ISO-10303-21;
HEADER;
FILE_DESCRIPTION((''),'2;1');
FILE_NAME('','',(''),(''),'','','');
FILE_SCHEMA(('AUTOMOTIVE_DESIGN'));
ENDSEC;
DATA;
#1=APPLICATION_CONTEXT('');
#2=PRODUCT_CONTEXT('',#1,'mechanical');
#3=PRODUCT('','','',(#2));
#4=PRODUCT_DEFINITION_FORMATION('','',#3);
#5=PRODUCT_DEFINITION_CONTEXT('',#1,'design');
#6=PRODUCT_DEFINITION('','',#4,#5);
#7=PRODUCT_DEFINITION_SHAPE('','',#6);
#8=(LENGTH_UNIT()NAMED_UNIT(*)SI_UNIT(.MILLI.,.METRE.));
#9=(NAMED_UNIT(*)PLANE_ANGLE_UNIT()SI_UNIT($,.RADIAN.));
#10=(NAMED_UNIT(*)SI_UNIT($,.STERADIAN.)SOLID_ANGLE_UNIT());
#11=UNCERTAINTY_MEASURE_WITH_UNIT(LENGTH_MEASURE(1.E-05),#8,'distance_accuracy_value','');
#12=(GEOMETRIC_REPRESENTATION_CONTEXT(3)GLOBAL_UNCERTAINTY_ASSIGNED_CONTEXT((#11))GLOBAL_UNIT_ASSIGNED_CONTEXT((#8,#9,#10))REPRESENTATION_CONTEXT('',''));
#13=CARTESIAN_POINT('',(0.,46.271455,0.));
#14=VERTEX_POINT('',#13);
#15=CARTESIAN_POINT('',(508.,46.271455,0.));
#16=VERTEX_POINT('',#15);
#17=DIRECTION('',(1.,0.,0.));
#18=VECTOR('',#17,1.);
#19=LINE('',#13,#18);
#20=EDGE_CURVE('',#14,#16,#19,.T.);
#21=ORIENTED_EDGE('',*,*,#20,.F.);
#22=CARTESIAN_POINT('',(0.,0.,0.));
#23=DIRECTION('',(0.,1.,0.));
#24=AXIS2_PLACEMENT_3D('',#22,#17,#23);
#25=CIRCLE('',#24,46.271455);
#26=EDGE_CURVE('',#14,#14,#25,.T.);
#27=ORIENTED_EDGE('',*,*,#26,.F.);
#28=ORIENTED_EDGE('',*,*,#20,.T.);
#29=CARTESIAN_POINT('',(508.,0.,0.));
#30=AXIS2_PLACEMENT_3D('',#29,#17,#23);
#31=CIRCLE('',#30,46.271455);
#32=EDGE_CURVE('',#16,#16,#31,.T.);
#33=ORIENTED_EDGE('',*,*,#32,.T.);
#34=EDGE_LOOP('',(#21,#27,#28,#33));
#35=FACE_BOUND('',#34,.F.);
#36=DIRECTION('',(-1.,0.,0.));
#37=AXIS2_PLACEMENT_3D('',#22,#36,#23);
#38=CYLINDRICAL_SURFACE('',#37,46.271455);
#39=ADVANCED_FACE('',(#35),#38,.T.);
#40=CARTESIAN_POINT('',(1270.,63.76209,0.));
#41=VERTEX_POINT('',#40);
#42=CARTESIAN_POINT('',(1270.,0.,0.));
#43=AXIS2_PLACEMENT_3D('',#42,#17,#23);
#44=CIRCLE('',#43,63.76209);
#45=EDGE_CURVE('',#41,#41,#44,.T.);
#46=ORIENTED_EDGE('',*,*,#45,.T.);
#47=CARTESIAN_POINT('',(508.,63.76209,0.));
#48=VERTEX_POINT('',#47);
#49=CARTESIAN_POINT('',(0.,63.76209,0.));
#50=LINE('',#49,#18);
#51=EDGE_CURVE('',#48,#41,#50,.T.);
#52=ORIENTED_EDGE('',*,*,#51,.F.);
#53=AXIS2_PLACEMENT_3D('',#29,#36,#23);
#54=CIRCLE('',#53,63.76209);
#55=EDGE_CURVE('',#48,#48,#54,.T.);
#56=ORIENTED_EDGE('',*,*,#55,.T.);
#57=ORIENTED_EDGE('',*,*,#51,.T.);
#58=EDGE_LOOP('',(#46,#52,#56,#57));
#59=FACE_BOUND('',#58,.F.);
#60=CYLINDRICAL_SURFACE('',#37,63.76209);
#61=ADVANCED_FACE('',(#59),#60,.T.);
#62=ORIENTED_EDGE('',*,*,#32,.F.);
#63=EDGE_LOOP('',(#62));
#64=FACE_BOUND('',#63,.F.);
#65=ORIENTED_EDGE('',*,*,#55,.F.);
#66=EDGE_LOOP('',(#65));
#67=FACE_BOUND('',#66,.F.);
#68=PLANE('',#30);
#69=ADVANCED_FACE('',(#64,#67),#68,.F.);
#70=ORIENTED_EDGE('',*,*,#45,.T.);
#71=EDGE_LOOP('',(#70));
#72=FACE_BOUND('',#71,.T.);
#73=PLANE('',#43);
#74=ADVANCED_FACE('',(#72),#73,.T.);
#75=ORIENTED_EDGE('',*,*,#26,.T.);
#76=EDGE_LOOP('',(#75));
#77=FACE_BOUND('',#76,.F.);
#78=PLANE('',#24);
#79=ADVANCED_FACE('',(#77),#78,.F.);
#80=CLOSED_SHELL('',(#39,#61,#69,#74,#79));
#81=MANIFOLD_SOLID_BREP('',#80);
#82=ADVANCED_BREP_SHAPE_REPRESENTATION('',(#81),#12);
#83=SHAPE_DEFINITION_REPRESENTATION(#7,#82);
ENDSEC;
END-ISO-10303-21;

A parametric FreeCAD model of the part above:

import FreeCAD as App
import Part
import Sketcher

V = App.Vector

doc = App.newDocument("Part")
params = doc.addObject("Spreadsheet::Sheet", "Params")
for row, (alias, value) in enumerate([
    ("pad1_length", "50 in"),
    ("pocket1_length", "20 in"),
], start=1):
    params.set(f"A{row}", alias)
    params.set(f"B{row}", "=" + value)
    params.setAlias(f"B{row}", alias)

body = doc.addObject("PartDesign::Body", "Body")

sketch1 = body.newObject("Sketcher::SketchObject", "Sketch")
sketch1.AttachmentSupport = (doc.getObject("YZ_Plane"), [""])
sketch1.MapMode = "FlatFace"
sketch1.addGeometry(Part.Circle(V(0, 0, 0), V(0, 0, 1), 64), False)
sketch1.addConstraint([
    Sketcher.Constraint("Coincident", 0, 3, -1, 1),
    Sketcher.Constraint("Diameter", 0, 127.52418),
])
pad1 = body.newObject("PartDesign::Pad", "Pad")
pad1.Profile = sketch1
pad1.setExpression("Length", "Params.pad1_length")

sketch2 = body.newObject("Sketcher::SketchObject", "Sketch001")
sketch2.AttachmentSupport = (doc.getObject("YZ_Plane"), [""])
sketch2.MapMode = "FlatFace"
sketch2.addGeometry([
    Part.Circle(V(0, 0, 0), V(0, 0, 1), 64),
    Part.Circle(V(0, 0, 0), V(0, 0, 1), 46),
], False)
sketch2.addConstraint([
    Sketcher.Constraint("Coincident", 0, 3, -1, 1),
    Sketcher.Constraint("Coincident", 1, 3, -1, 1),
    Sketcher.Constraint("Diameter", 1, 92.54291),
    Sketcher.Constraint("Diameter", 0, 127.672394),
])
pocket1 = body.newObject("PartDesign::Pocket", "Pocket")
pocket1.Profile = sketch2
pocket1.setExpression("Length", "Params.pocket1_length")
pocket1.Reversed = True

doc.recompute()
